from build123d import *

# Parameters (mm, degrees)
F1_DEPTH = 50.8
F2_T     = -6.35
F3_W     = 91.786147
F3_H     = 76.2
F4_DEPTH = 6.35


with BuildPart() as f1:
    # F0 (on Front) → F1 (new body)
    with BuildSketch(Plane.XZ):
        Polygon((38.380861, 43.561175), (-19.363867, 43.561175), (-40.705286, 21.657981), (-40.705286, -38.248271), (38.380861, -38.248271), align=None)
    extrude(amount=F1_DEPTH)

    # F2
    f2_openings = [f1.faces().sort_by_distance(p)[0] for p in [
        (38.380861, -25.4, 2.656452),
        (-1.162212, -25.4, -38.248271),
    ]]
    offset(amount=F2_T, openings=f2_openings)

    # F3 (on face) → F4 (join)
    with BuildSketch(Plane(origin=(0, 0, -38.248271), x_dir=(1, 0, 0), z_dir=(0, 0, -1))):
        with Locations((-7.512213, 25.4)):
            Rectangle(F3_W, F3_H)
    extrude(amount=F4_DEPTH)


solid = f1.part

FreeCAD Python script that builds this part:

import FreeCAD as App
import Part
import Sketcher

V = App.Vector
Q = App.Units.Quantity


def faces_at(feature, points):
    """Names of the faces that lie closest to the given points."""
    faces = feature.Shape.Faces
    near = lambda p: min(range(len(faces)), key=lambda i: faces[i].distToShape(Part.Vertex(*p))[0])
    return sorted({f"Face{near(p) + 1}" for p in points})


def add_polygon(sketch, points):
    """Adds a closed chain of lines whose ends are joined by coincident constraints."""
    first, n = sketch.GeometryCount, len(points)
    for a, b in zip(points, points[1:] + points[:1]):
        sketch.addGeometry(Part.LineSegment(App.Vector(*a, 0), App.Vector(*b, 0)), False)
    for i in range(n):
        sketch.addConstraint(Sketcher.Constraint("Coincident", first + i, 2, first + (i + 1) % n, 1))

doc = App.newDocument("Part")
body = doc.addObject("PartDesign::Body", "Body")

# Sketch on XZ plane
sketch1 = body.newObject("Sketcher::SketchObject", "Sketch")
sketch1.AttachmentSupport = (doc.getObject("XZ_Plane"), [""])
sketch1.MapMode = "FlatFace"
add_polygon(sketch1, [(38, 44), (-19, 44), (-41, 22), (-41, -38), (38, -38)])  # lines 0-4
sketch1.addConstraint(Sketcher.Constraint("Horizontal", 0))
sketch1.addConstraint(Sketcher.Constraint("Vertical", 2))
sketch1.addConstraint(Sketcher.Constraint("Horizontal", 3))
sketch1.addConstraint(Sketcher.Constraint("Vertical", 4))
sketch1.addConstraint(Sketcher.Constraint("DistanceX", 0, 2, 0, 1, Q("57.744728 mm")))
sketch1.addConstraint(Sketcher.Constraint("Distance", 1, Q("30.581139 mm")))
sketch1.addConstraint(Sketcher.Constraint("DistanceX", 3, 1, 3, 2, Q("79.086147 mm")))
sketch1.addConstraint(Sketcher.Constraint("DistanceY", 2, 2, 2, 1, Q("59.906252 mm")))
sketch1.addConstraint(Sketcher.Constraint("DistanceY", -1, 1, 1, 2, Q("21.657981 mm")))
sketch1.addConstraint(Sketcher.Constraint("DistanceX", -1, 1, 3, 2, Q("38.380861 mm")))
pad1 = body.newObject("PartDesign::Pad", "Pad")
pad1.Profile = sketch1
pad1.Length = Q("2 in")
doc.recompute()

thickness = body.newObject("PartDesign::Thickness", "Thickness")
thickness.Base = (pad1, faces_at(pad1, [(38.381, -25.4, 2.656), (-1.162, -25.4, -38.248)]))
thickness.Value = Q("0.25 in")
thickness.Reversed = True
thickness.Join = "Arc"

# Sketch on XY plane
sketch2 = body.newObject("Sketcher::SketchObject", "Sketch001")
sketch2.AttachmentSupport = (doc.getObject("XY_Plane"), [""])
sketch2.MapMode = "FlatFace"
sketch2.AttachmentOffset = App.Placement(V(0, 0, -38.248271), App.Rotation())
add_polygon(sketch2, [(-53, -64), (-53, 13), (38, 13), (38, -64)])  # lines 0-3
sketch2.addConstraint(Sketcher.Constraint("Vertical", 0))
sketch2.addConstraint(Sketcher.Constraint("Horizontal", 1))
sketch2.addConstraint(Sketcher.Constraint("Vertical", 2))
sketch2.addConstraint(Sketcher.Constraint("Horizontal", 3))
sketch2.addConstraint(Sketcher.Constraint("DistanceY", 0, 1, 0, 2, Q("3 in")))
sketch2.addConstraint(Sketcher.Constraint("DistanceY", -1, 1, 0, 2, Q("0.5 in")))
sketch2.addConstraint(Sketcher.Constraint("DistanceX", 1, 1, 1, 2, Q("91.786147 mm")))
sketch2.addConstraint(Sketcher.Constraint("DistanceX", -1, 1, 1, 2, Q("38.38086 mm")))
pad2 = body.newObject("PartDesign::Pad", "Pad001")
pad2.Profile = sketch2
pad2.Length = Q("0.25 in")
pad2.Reversed = True

doc.recompute()
